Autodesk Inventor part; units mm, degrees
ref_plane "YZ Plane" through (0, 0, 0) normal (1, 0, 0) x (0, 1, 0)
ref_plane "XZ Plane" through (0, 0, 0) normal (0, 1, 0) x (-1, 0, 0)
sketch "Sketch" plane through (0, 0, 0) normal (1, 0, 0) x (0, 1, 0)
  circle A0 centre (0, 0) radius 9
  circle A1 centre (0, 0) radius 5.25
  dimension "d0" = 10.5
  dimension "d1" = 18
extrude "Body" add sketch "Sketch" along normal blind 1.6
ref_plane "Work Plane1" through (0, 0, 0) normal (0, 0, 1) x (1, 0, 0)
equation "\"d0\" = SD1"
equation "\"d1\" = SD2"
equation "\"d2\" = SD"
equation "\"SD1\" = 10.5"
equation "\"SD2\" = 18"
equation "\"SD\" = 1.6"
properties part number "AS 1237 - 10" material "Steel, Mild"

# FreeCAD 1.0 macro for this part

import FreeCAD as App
import Part
import Sketcher

doc = App.newDocument("Part")
body = doc.addObject("PartDesign::Body", "Body")

sketch1 = doc.addObject("Sketcher::SketchObject", "Sketch")
body.addObject(sketch1)
sketch1.AttachmentSupport = (doc.YZ_Plane, [""])
sketch1.MapMode = "FlatFace"
sketch1.addGeometry([
    Part.Circle(App.Vector(0, 0, 0), App.Vector(0, 0, 1), 9),
    Part.Circle(App.Vector(0, 0, 0), App.Vector(0, 0, 1), 5.25),
], False)
sketch1.addConstraint([
    Sketcher.Constraint("Coincident", 0, 3, -1, 1),
    Sketcher.Constraint("Coincident", 1, 3, -1, 1),
    Sketcher.Constraint("Diameter", 0, 18.0),
    Sketcher.Constraint("Diameter", 1, 10.5),
])
pad1 = doc.addObject("PartDesign::Pad", "Pad")
body.addObject(pad1)
pad1.Profile = sketch1
pad1.Length = 1.6

doc.recompute()
